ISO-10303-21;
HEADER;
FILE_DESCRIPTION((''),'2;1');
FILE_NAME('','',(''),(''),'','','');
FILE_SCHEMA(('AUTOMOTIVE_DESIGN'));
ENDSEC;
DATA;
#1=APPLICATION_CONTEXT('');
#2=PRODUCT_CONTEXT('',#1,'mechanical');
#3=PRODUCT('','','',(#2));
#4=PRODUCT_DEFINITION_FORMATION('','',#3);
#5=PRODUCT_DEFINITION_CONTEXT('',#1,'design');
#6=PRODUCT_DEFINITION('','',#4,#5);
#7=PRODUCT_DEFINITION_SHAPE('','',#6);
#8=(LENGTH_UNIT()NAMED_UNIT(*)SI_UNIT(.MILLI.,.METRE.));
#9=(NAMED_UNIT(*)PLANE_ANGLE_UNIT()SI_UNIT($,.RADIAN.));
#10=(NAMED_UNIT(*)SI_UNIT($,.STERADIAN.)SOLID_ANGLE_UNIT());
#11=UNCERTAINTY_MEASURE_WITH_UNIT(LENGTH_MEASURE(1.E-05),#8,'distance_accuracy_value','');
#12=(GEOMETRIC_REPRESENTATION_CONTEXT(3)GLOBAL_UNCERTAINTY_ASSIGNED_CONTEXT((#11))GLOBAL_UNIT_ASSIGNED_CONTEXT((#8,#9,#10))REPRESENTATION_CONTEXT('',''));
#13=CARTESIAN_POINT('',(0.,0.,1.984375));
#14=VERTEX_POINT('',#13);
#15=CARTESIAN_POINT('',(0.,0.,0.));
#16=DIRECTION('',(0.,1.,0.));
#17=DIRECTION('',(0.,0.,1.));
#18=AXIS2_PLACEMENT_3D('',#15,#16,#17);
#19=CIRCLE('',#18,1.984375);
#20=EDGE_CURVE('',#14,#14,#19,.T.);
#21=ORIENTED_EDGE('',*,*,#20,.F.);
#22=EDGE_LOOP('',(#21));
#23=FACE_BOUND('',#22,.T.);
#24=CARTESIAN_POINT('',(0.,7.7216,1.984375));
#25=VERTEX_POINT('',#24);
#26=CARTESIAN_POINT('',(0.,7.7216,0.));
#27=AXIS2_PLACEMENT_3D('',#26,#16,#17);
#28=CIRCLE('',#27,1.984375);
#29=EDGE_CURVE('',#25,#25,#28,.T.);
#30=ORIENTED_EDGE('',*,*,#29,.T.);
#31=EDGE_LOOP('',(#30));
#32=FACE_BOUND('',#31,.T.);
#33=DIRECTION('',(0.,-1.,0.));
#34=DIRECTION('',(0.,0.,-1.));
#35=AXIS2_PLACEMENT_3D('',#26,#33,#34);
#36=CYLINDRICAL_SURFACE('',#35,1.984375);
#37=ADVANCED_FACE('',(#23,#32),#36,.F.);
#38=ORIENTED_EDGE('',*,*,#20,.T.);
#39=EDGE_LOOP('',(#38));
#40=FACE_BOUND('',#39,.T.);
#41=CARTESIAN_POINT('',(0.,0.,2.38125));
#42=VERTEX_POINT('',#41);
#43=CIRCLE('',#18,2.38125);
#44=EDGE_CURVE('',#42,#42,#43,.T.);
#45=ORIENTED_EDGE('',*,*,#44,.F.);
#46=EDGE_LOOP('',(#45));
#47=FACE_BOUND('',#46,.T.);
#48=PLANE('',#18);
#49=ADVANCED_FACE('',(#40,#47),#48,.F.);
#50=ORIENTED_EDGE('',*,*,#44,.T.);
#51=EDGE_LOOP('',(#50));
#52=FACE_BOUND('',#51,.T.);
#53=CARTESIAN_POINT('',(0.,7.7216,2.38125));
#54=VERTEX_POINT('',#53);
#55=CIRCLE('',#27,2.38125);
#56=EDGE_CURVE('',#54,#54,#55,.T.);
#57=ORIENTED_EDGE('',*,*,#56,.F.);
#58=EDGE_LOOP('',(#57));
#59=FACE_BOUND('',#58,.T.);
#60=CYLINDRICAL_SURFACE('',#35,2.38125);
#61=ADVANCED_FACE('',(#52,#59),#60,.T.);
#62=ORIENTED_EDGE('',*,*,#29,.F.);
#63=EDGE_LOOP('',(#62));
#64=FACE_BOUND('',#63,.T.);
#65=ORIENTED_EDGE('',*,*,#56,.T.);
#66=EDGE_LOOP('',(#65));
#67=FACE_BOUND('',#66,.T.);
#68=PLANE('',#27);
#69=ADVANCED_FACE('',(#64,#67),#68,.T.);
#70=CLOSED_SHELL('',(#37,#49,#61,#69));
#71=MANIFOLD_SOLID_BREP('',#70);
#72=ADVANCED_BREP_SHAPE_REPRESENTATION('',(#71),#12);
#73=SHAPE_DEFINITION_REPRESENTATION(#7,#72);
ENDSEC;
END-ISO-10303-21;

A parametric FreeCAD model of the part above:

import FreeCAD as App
import Part
import Sketcher
Q = App.Units.Quantity

doc = App.newDocument("Part")
body = doc.addObject("PartDesign::Body", "Body")

sketch1 = body.newObject("Sketcher::SketchObject", "Sketch")
sketch1.AttachmentSupport = (doc.getObject("XZ_Plane"), [""])
sketch1.MapMode = "FlatFace"
sketch1.addGeometry(Part.Circle(App.Vector(0, 0, 0), App.Vector(0, 0, 1), 2.38125), False)
sketch1.addGeometry(Part.Circle(App.Vector(0, 0, 0), App.Vector(0, 0, 1), 1.984375), False)
sketch1.addConstraint(Sketcher.Constraint("Coincident", 0, 3, -1, 1))
sketch1.addConstraint(Sketcher.Constraint("Coincident", 1, 3, -1, 1))
sketch1.addConstraint(Sketcher.Constraint("Diameter", 0, Q("0.1875 in")))
sketch1.addConstraint(Sketcher.Constraint("Diameter", 1, Q("0.15625 in")))
pad1 = body.newObject("PartDesign::Pad", "Pad")
pad1.Profile = sketch1
pad1.Length = Q("0.304 in")
pad1.Reversed = True

doc.recompute()
